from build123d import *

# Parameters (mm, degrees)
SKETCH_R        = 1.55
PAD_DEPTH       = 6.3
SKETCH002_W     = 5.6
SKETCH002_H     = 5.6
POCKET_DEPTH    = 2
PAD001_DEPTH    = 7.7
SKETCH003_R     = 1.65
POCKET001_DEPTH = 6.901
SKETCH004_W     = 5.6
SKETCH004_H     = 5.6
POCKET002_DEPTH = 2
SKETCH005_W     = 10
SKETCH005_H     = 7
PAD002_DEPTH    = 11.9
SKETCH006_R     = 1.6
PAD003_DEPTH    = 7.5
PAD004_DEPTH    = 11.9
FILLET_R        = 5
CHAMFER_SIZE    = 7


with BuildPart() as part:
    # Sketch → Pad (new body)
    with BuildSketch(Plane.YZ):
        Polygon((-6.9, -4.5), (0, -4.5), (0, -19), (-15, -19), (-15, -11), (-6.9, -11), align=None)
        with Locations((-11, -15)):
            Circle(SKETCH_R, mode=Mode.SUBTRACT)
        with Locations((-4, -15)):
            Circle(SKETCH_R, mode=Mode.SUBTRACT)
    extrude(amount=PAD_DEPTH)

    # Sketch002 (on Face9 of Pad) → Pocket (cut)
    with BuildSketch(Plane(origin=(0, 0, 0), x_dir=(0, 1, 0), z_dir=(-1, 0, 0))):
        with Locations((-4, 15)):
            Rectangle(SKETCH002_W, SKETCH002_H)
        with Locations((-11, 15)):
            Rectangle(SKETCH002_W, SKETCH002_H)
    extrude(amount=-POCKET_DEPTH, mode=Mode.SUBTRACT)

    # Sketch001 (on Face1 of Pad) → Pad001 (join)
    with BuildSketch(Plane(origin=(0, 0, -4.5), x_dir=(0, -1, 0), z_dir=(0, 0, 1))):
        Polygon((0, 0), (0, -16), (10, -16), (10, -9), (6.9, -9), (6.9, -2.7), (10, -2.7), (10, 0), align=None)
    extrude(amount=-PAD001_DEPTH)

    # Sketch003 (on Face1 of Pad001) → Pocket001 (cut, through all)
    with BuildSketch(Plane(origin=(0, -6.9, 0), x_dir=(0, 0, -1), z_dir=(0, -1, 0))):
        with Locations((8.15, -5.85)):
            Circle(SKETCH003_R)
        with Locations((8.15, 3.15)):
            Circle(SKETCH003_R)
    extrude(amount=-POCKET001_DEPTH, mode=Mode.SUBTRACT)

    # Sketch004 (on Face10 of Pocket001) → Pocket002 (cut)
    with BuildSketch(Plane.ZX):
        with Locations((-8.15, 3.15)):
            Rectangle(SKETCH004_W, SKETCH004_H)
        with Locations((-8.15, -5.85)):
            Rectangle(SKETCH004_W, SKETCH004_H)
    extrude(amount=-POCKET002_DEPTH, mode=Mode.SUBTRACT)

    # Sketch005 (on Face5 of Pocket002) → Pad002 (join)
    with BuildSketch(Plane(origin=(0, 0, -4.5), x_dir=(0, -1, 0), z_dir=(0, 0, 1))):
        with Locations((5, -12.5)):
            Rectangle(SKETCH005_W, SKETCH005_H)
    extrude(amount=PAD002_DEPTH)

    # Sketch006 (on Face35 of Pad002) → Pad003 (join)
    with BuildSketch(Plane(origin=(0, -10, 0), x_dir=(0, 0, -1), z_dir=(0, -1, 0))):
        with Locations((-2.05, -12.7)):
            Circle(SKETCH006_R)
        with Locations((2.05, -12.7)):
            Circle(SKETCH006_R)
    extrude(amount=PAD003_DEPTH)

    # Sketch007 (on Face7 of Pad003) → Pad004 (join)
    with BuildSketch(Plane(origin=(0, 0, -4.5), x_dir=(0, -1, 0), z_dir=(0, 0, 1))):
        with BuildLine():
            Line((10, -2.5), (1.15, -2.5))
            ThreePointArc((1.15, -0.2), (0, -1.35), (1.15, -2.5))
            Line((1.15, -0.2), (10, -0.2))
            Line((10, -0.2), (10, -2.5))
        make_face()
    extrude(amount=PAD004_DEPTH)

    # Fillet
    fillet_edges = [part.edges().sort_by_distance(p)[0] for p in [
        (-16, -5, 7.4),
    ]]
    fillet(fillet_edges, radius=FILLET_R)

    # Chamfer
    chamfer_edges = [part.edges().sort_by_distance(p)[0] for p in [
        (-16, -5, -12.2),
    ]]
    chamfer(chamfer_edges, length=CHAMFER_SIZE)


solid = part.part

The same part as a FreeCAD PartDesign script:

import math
import FreeCAD as App
import Part
import Sketcher

V = App.Vector


def edges_at(feature, points):
    """Names of the edges that pass closest to the given points."""
    edges = feature.Shape.Edges
    near = lambda p: min(range(len(edges)), key=lambda i: edges[i].distToShape(Part.Vertex(*p))[0])
    return sorted({f"Edge{near(p) + 1}" for p in points})

doc = App.newDocument("Part")
body = doc.addObject("PartDesign::Body", "Body")

# Sketch on YZ plane
sketch1 = body.newObject("Sketcher::SketchObject", "Sketch")
sketch1.AttachmentSupport = (doc.getObject("YZ_Plane"), [""])
sketch1.MapMode = "FlatFace"
sketch1.addGeometry(Part.LineSegment(V(0, -4.5, 0), V(-6.9, -4.5, 0)), False)
sketch1.addGeometry(Part.LineSegment(V(-6.9, -4.5, 0), V(-6.9, -11, 0)), False)
sketch1.addGeometry(Part.LineSegment(V(-6.9, -11, 0), V(-15, -11, 0)), False)
sketch1.addGeometry(Part.LineSegment(V(-15, -11, 0), V(-15, -19, 0)), False)
sketch1.addGeometry(Part.LineSegment(V(-15, -19, 0), V(0, -19, 0)), False)
sketch1.addGeometry(Part.LineSegment(V(0, -19, 0), V(0, -4.5, 0)), False)
sketch1.addGeometry(Part.Circle(V(-4, -15, 0), V(0, 0, 1), 1.6), False)
sketch1.addGeometry(Part.Circle(V(-11, -15, 0), V(0, 0, 1), 1.6), False)
sketch1.addConstraint(Sketcher.Constraint("Coincident", 0, 2, 1, 1))
sketch1.addConstraint(Sketcher.Constraint("Coincident", 1, 2, 2, 1))
sketch1.addConstraint(Sketcher.Constraint("Coincident", 2, 2, 3, 1))
sketch1.addConstraint(Sketcher.Constraint("Coincident", 3, 2, 4, 1))
sketch1.addConstraint(Sketcher.Constraint("Coincident", 4, 2, 5, 1))
sketch1.addConstraint(Sketcher.Constraint("Coincident", 5, 2, 0, 1))
sketch1.addConstraint(Sketcher.Constraint("Horizontal", 0))
sketch1.addConstraint(Sketcher.Constraint("Vertical", 1))
sketch1.addConstraint(Sketcher.Constraint("Horizontal", 2))
sketch1.addConstraint(Sketcher.Constraint("Vertical", 3))
sketch1.addConstraint(Sketcher.Constraint("Horizontal", 4))
sketch1.addConstraint(Sketcher.Constraint("Vertical", 5))
sketch1.addConstraint(Sketcher.Constraint("Equal", 6, 7))
sketch1.addConstraint(Sketcher.Constraint("PointOnObject", 4, 2, -2))
sketch1.addConstraint(Sketcher.Constraint("Horizontal", 6, 3, 7, 3))
sketch1.addConstraint(Sketcher.Constraint("Diameter", 6, 3.1))
sketch1.addConstraint(Sketcher.Constraint("DistanceX", 4, 1, 4, 2, 15.0))
sketch1.addConstraint(Sketcher.Constraint("DistanceY", 3, 2, 3, 1, 8.0))
sketch1.addConstraint(Sketcher.Constraint("DistanceX", 0, 2, 0, 1, 6.9))
sketch1.addConstraint(Sketcher.Constraint("DistanceY", 1, 2, 1, 1, 6.5))
sketch1.addConstraint(Sketcher.Constraint("DistanceX", 6, 3, -1, 1, 4.0))
sketch1.addConstraint(Sketcher.Constraint("DistanceY", 6, 3, -1, 1, 15.0))
sketch1.addConstraint(Sketcher.Constraint("DistanceX", 7, 3, -1, 1, 11.0))
sketch1.addConstraint(Sketcher.Constraint("DistanceY", 1, 2, -1, 1, 11.0))
pad1 = body.newObject("PartDesign::Pad", "Pad")
pad1.Profile = sketch1
pad1.Length = 6.3

# Sketch on YZ plane
sketch2 = body.newObject("Sketcher::SketchObject", "Sketch001")
sketch2.AttachmentSupport = (doc.getObject("YZ_Plane"), [""])
sketch2.MapMode = "FlatFace"
sketch2.addGeometry(Part.LineSegment(V(-7, -18, 0), V(-7, -12, 0)), False)
sketch2.addGeometry(Part.LineSegment(V(-7, -12, 0), V(-1, -12, 0)), False)
sketch2.addGeometry(Part.LineSegment(V(-1, -12, 0), V(-1, -18, 0)), False)
sketch2.addGeometry(Part.LineSegment(V(-1, -18, 0), V(-7, -18, 0)), False)
sketch2.addGeometry(Part.LineSegment(V(-14, -18, 0), V(-14, -12, 0)), False)
sketch2.addGeometry(Part.LineSegment(V(-14, -12, 0), V(-8, -12, 0)), False)
sketch2.addGeometry(Part.LineSegment(V(-8, -12, 0), V(-8, -18, 0)), False)
sketch2.addGeometry(Part.LineSegment(V(-8, -18, 0), V(-14, -18, 0)), False)
sketch2.addConstraint(Sketcher.Constraint("Coincident", 0, 2, 1, 1))
sketch2.addConstraint(Sketcher.Constraint("Coincident", 1, 2, 2, 1))
sketch2.addConstraint(Sketcher.Constraint("Coincident", 2, 2, 3, 1))
sketch2.addConstraint(Sketcher.Constraint("Coincident", 3, 2, 0, 1))
sketch2.addConstraint(Sketcher.Constraint("Coincident", 4, 2, 5, 1))
sketch2.addConstraint(Sketcher.Constraint("Coincident", 5, 2, 6, 1))
sketch2.addConstraint(Sketcher.Constraint("Coincident", 6, 2, 7, 1))
sketch2.addConstraint(Sketcher.Constraint("Coincident", 7, 2, 4, 1))
sketch2.addConstraint(Sketcher.Constraint("Vertical", 0))
sketch2.addConstraint(Sketcher.Constraint("Horizontal", 1))
sketch2.addConstraint(Sketcher.Constraint("Vertical", 2))
sketch2.addConstraint(Sketcher.Constraint("Horizontal", 3))
sketch2.addConstraint(Sketcher.Constraint("Vertical", 4))
sketch2.addConstraint(Sketcher.Constraint("Horizontal", 5))
sketch2.addConstraint(Sketcher.Constraint("Vertical", 6))
sketch2.addConstraint(Sketcher.Constraint("Horizontal", 7))
sketch2.addConstraint(Sketcher.Constraint("Horizontal", 1, 2, 4, 2))
sketch2.addConstraint(Sketcher.Constraint("Horizontal", 3, 2, 6, 2))
sketch2.addConstraint(Sketcher.Constraint("Equal", 3, 5))
sketch2.addConstraint(Sketcher.Constraint("Equal", 7, 0))
sketch2.addConstraint(Sketcher.Constraint("DistanceX", 1, 1, 1, 2, 5.6))
sketch2.addConstraint(Sketcher.Constraint("DistanceX", 4, 2, 0, 2, 7.0))
sketch2.addConstraint(Sketcher.Constraint("DistanceX", 0, 2, -1, 1, 6.8))
sketch2.addConstraint(Sketcher.Constraint("DistanceY", 0, 2, -1, 1, 12.2))
pocket1 = body.newObject("PartDesign::Pocket", "Pocket")
pocket1.Profile = sketch2
pocket1.Length = 2
pocket1.Reversed = True

# Sketch on XY plane
sketch3 = body.newObject("Sketcher::SketchObject", "Sketch002")
sketch3.AttachmentSupport = (doc.getObject("XY_Plane"), [""])
sketch3.MapMode = "FlatFace"
sketch3.AttachmentOffset = App.Placement(V(0, 0, -4.5), App.Rotation())
sketch3.addGeometry(Part.LineSegment(V(0, 0, 0), V(-16, 0, 0)), False)
sketch3.addGeometry(Part.LineSegment(V(-16, 0, 0), V(-16, -10, 0)), False)
sketch3.addGeometry(Part.LineSegment(V(-16, -10, 0), V(-9, -10, 0)), False)
sketch3.addGeometry(Part.LineSegment(V(-9, -10, 0), V(-9, -6.9, 0)), False)
sketch3.addGeometry(Part.LineSegment(V(-9, -6.9, 0), V(-2.7, -6.9, 0)), False)
sketch3.addGeometry(Part.LineSegment(V(-2.7, -6.9, 0), V(-2.7, -10, 0)), False)
sketch3.addGeometry(Part.LineSegment(V(-2.7, -10, 0), V(0, -10, 0)), False)
sketch3.addGeometry(Part.LineSegment(V(0, -10, 0), V(0, 0, 0)), False)
sketch3.addConstraint(Sketcher.Constraint("Coincident", 0, 2, 1, 1))
sketch3.addConstraint(Sketcher.Constraint("Coincident", 1, 2, 2, 1))
sketch3.addConstraint(Sketcher.Constraint("Coincident", 2, 2, 3, 1))
sketch3.addConstraint(Sketcher.Constraint("Coincident", 3, 2, 4, 1))
sketch3.addConstraint(Sketcher.Constraint("Coincident", 4, 2, 5, 1))
sketch3.addConstraint(Sketcher.Constraint("Coincident", 5, 2, 6, 1))
sketch3.addConstraint(Sketcher.Constraint("Coincident", 6, 2, 7, 1))
sketch3.addConstraint(Sketcher.Constraint("Coincident", 7, 2, 0, 1))
sketch3.addConstraint(Sketcher.Constraint("Horizontal", 0))
sketch3.addConstraint(Sketcher.Constraint("Vertical", 1))
sketch3.addConstraint(Sketcher.Constraint("Horizontal", 2))
sketch3.addConstraint(Sketcher.Constraint("Vertical", 3))
sketch3.addConstraint(Sketcher.Constraint("Horizontal", 4))
sketch3.addConstraint(Sketcher.Constraint("Vertical", 5))
sketch3.addConstraint(Sketcher.Constraint("Horizontal", 6))
sketch3.addConstraint(Sketcher.Constraint("Vertical", 7))
sketch3.addConstraint(Sketcher.Constraint("Coincident", 7, 2, -1, 1))
sketch3.addConstraint(Sketcher.Constraint("Horizontal", 2, 2, 5, 2))
sketch3.addConstraint(Sketcher.Constraint("DistanceX", 0, 2, 0, 1, 16.0))
sketch3.addConstraint(Sketcher.Constraint("DistanceX", 2, 1, 2, 2, 7.0))
sketch3.addConstraint(Sketcher.Constraint("DistanceY", 1, 2, 1, 1, 10.0))
sketch3.addConstraint(Sketcher.Constraint("DistanceX", 4, 1, 4, 2, 6.3))
sketch3.addConstraint(Sketcher.Constraint("DistanceY", 3, 1, 3, 2, 3.1))
pad2 = body.newObject("PartDesign::Pad", "Pad001")
pad2.Profile = sketch3
pad2.Length = 7.7
pad2.Reversed = True

# Sketch on XZ plane
sketch4 = body.newObject("Sketcher::SketchObject", "Sketch003")
sketch4.AttachmentSupport = (doc.getObject("XZ_Plane"), [""])
sketch4.MapMode = "FlatFace"
sketch4.AttachmentOffset = App.Placement(V(0, 0, 6.9), App.Rotation())
sketch4.addGeometry(Part.Circle(V(-5.8, -8.2, 0), V(0, 0, 1), 1.6), False)
sketch4.addGeometry(Part.Circle(V(3.1, -8.2, 0), V(0, 0, 1), 1.6), False)
sketch4.addConstraint(Sketcher.Constraint("Equal", 0, 1))
sketch4.addConstraint(Sketcher.Constraint("Horizontal", 0, 3, 1, 3))
sketch4.addConstraint(Sketcher.Constraint("Diameter", 0, 3.3))
sketch4.addConstraint(Sketcher.Constraint("DistanceX", 0, 3, 1, 3, 9.0))
sketch4.addConstraint(Sketcher.Constraint("DistanceX", 0, 3, -1, 1, 5.85))
sketch4.addConstraint(Sketcher.Constraint("DistanceY", 0, 3, -1, 1, 8.15))
pocket2 = body.newObject("PartDesign::Pocket", "Pocket001")
pocket2.Profile = sketch4
pocket2.Type = "ThroughAll"

# Sketch on XZ plane
sketch5 = body.newObject("Sketcher::SketchObject", "Sketch004")
sketch5.AttachmentSupport = (doc.getObject("XZ_Plane"), [""])
sketch5.MapMode = "FlatFace"
sketch5.addGeometry(Part.LineSegment(V(6, -11, 0), V(0, -11, 0)), False)
sketch5.addGeometry(Part.LineSegment(V(0, -11, 0), V(0, -5, 0)), False)
sketch5.addGeometry(Part.LineSegment(V(0, -5, 0), V(6, -5, 0)), False)
sketch5.addGeometry(Part.LineSegment(V(6, -5, 0), V(6, -11, 0)), False)
sketch5.addGeometry(Part.LineSegment(V(-3, -11, 0), V(-9, -11, 0)), False)
sketch5.addGeometry(Part.LineSegment(V(-9, -11, 0), V(-9, -5, 0)), False)
sketch5.addGeometry(Part.LineSegment(V(-9, -5, 0), V(-3, -5, 0)), False)
sketch5.addGeometry(Part.LineSegment(V(-3, -5, 0), V(-3, -11, 0)), False)
sketch5.addConstraint(Sketcher.Constraint("Coincident", 0, 2, 1, 1))
sketch5.addConstraint(Sketcher.Constraint("Coincident", 1, 2, 2, 1))
sketch5.addConstraint(Sketcher.Constraint("Coincident", 2, 2, 3, 1))
sketch5.addConstraint(Sketcher.Constraint("Coincident", 3, 2, 0, 1))
sketch5.addConstraint(Sketcher.Constraint("Coincident", 4, 2, 5, 1))
sketch5.addConstraint(Sketcher.Constraint("Coincident", 5, 2, 6, 1))
sketch5.addConstraint(Sketcher.Constraint("Coincident", 6, 2, 7, 1))
sketch5.addConstraint(Sketcher.Constraint("Coincident", 7, 2, 4, 1))
sketch5.addConstraint(Sketcher.Constraint("Horizontal", 0))
sketch5.addConstraint(Sketcher.Constraint("Vertical", 1))
sketch5.addConstraint(Sketcher.Constraint("Horizontal", 2))
sketch5.addConstraint(Sketcher.Constraint("Vertical", 3))
sketch5.addConstraint(Sketcher.Constraint("Horizontal", 4))
sketch5.addConstraint(Sketcher.Constraint("Vertical", 5))
sketch5.addConstraint(Sketcher.Constraint("Horizontal", 6))
sketch5.addConstraint(Sketcher.Constraint("Vertical", 7))
sketch5.addConstraint(Sketcher.Constraint("Horizontal", 3, 2, 4, 2))
sketch5.addConstraint(Sketcher.Constraint("Horizontal", 2, 2, 5, 2))
sketch5.addConstraint(Sketcher.Constraint("Equal", 2, 4))
sketch5.addConstraint(Sketcher.Constraint("Equal", 6, 1))
sketch5.addConstraint(Sketcher.Constraint("DistanceX", 0, 2, 0, 1, 5.6))
sketch5.addConstraint(Sketcher.Constraint("DistanceX", 4, 2, 0, 2, 9.0))
sketch5.addConstraint(Sketcher.Constraint("DistanceX", -1, 1, 0, 2, 0.35))
sketch5.addConstraint(Sketcher.Constraint("DistanceY", 0, 2, -1, 1, 10.95))
pocket3 = body.newObject("PartDesign::Pocket", "Pocket002")
pocket3.Profile = sketch5
pocket3.Length = 2
pocket3.Reversed = True

# Sketch on XY plane
sketch6 = body.newObject("Sketcher::SketchObject", "Sketch005")
sketch6.AttachmentSupport = (doc.getObject("XY_Plane"), [""])
sketch6.MapMode = "FlatFace"
sketch6.AttachmentOffset = App.Placement(V(0, 0, -4.5), App.Rotation())
sketch6.addGeometry(Part.LineSegment(V(-9, 0, 0), V(-16, 0, 0)), False)
sketch6.addGeometry(Part.LineSegment(V(-16, 0, 0), V(-16, -10, 0)), False)
sketch6.addGeometry(Part.LineSegment(V(-16, -10, 0), V(-9, -10, 0)), False)
sketch6.addGeometry(Part.LineSegment(V(-9, -10, 0), V(-9, 0, 0)), False)
sketch6.addConstraint(Sketcher.Constraint("Coincident", 0, 2, 1, 1))
sketch6.addConstraint(Sketcher.Constraint("Coincident", 1, 2, 2, 1))
sketch6.addConstraint(Sketcher.Constraint("Coincident", 2, 2, 3, 1))
sketch6.addConstraint(Sketcher.Constraint("Coincident", 3, 2, 0, 1))
sketch6.addConstraint(Sketcher.Constraint("Horizontal", 0))
sketch6.addConstraint(Sketcher.Constraint("Vertical", 1))
sketch6.addConstraint(Sketcher.Constraint("Horizontal", 2))
sketch6.addConstraint(Sketcher.Constraint("Vertical", 3))
sketch6.addConstraint(Sketcher.Constraint("PointOnObject", 0, 2, -1))
sketch6.addConstraint(Sketcher.Constraint("DistanceX", 0, 2, 0, 1, 7.0))
sketch6.addConstraint(Sketcher.Constraint("DistanceY", 1, 2, 1, 1, 10.0))
sketch6.addConstraint(Sketcher.Constraint("DistanceX", 0, 2, -1, 1, 16.0))
pad3 = body.newObject("PartDesign::Pad", "Pad002")
pad3.Profile = sketch6
pad3.Length = 11.9

# Sketch on XZ plane
sketch7 = body.newObject("Sketcher::SketchObject", "Sketch006")
sketch7.AttachmentSupport = (doc.getObject("XZ_Plane"), [""])
sketch7.MapMode = "FlatFace"
sketch7.AttachmentOffset = App.Placement(V(0, 0, 10), App.Rotation())
sketch7.addGeometry(Part.Circle(V(-12.7, 2, 0), V(0, 0, 1), 1.6), False)
sketch7.addGeometry(Part.Circle(V(-12.7, -2, 0), V(0, 0, 1), 1.6), False)
sketch7.addConstraint(Sketcher.Constraint("Equal", 0, 1))
sketch7.addConstraint(Sketcher.Constraint("Symmetric", 0, 3, 1, 3, -1))
sketch7.addConstraint(Sketcher.Constraint("Diameter", 0, 3.2))
sketch7.addConstraint(Sketcher.Constraint("DistanceX", 0, 3, -1, 1, 12.7))
sketch7.addConstraint(Sketcher.Constraint("DistanceY", 1, 3, 0, 3, 4.1))
pad4 = body.newObject("PartDesign::Pad", "Pad003")
pad4.Profile = sketch7
pad4.Length = 7.5

# Sketch on XY plane
sketch8 = body.newObject("Sketcher::SketchObject", "Sketch007")
sketch8.AttachmentSupport = (doc.getObject("XY_Plane"), [""])
sketch8.MapMode = "FlatFace"
sketch8.AttachmentOffset = App.Placement(V(0, 0, -4.5), App.Rotation())
sketch8.addGeometry(Part.LineSegment(V(-2.5, -1.1, 0), V(-2.5, -10, 0)), False)
sketch8.addGeometry(Part.LineSegment(V(-2.5, -10, 0), V(-0.2, -10, 0)), False)
sketch8.addGeometry(Part.LineSegment(V(-0.2, -10, 0), V(-0.2, -1.1, 0)), False)
sketch8.addGeometry(Part.ArcOfCircle(Part.Circle(V(-1.4, -1.1, 0), V(0, 0, 1), 1.1), math.radians(0), math.radians(180)), False)
sketch8.addConstraint(Sketcher.Constraint("Coincident", 0, 2, 1, 1))
sketch8.addConstraint(Sketcher.Constraint("Coincident", 1, 2, 2, 1))
sketch8.addConstraint(Sketcher.Constraint("Tangent", 2, 2, 3, 1))
sketch8.addConstraint(Sketcher.Constraint("Tangent", 3, 2, 0, 1))
sketch8.addConstraint(Sketcher.Constraint("Vertical", 0))
sketch8.addConstraint(Sketcher.Constraint("Horizontal", 1))
sketch8.addConstraint(Sketcher.Constraint("Vertical", 2))
sketch8.addConstraint(Sketcher.Constraint("Radius", 3, 1.15))
sketch8.addConstraint(Sketcher.Constraint("DistanceY", 0, 2, -1, 1, 10.0))
sketch8.addConstraint(Sketcher.Constraint("DistanceY", 0, 2, 0, 1, 8.85))
sketch8.addConstraint(Sketcher.Constraint("DistanceX", 0, 2, -1, 1, 2.5))
pad5 = body.newObject("PartDesign::Pad", "Pad004")
pad5.Profile = sketch8
pad5.Length = 11.9
doc.recompute()

fillet = body.newObject("PartDesign::Fillet", "Fillet")
fillet.Base = (pad5, edges_at(pad5, [(-16, -5, 7.4)]))
fillet.Radius = 5
doc.recompute()

chamfer = body.newObject("PartDesign::Chamfer", "Chamfer")
chamfer.Base = (fillet, edges_at(fillet, [(-16, -5, -12.2)]))
chamfer.Size = 7

doc.recompute()
